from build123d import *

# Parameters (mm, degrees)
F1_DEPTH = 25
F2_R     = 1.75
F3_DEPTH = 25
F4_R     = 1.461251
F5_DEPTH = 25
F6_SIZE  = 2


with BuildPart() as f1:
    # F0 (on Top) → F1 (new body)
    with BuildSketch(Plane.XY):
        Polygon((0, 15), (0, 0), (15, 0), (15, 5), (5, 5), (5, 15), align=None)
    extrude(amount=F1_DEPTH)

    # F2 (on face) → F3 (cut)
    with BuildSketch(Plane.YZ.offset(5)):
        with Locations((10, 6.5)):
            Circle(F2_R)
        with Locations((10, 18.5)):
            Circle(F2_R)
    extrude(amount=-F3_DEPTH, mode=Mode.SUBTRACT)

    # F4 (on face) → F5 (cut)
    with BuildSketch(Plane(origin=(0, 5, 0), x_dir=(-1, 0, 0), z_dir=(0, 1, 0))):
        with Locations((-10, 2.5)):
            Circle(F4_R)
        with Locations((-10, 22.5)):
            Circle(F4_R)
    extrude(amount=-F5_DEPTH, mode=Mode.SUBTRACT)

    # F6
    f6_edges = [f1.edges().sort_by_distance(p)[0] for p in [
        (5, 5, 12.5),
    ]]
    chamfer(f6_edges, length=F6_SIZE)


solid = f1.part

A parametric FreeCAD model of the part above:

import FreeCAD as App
import Part
import Sketcher
from FreeCAD import Vector


def edges_at(feature, points):
    """Names of the edges that pass closest to the given points."""
    edges = feature.Shape.Edges
    near = lambda p: min(range(len(edges)), key=lambda i: edges[i].distToShape(Part.Vertex(*p))[0])
    return sorted({f"Edge{near(p) + 1}" for p in points})


def add_polygon(sketch, points):
    """Adds a closed chain of lines whose ends are joined by coincident constraints."""
    first, n = sketch.GeometryCount, len(points)
    for a, b in zip(points, points[1:] + points[:1]):
        sketch.addGeometry(Part.LineSegment(App.Vector(*a, 0), App.Vector(*b, 0)), False)
    for i in range(n):
        sketch.addConstraint(Sketcher.Constraint("Coincident", first + i, 2, first + (i + 1) % n, 1))

doc = App.newDocument("Part")
body = doc.addObject("PartDesign::Body", "Body")

# Sketch on XY plane
sketch1 = body.newObject("Sketcher::SketchObject", "Sketch")
sketch1.AttachmentSupport = (doc.getObject("XY_Plane"), [""])
sketch1.MapMode = "FlatFace"
add_polygon(sketch1, [(0, 15), (0, 0), (15, 0), (15, 5), (5, 5), (5, 15)])  # lines 0-5
sketch1.addConstraint([
    Sketcher.Constraint("Vertical", 0),
    Sketcher.Constraint("Horizontal", 1),
    Sketcher.Constraint("Vertical", 2),
    Sketcher.Constraint("Horizontal", 3),
    Sketcher.Constraint("Vertical", 4),
    Sketcher.Constraint("Horizontal", 5),
    Sketcher.Constraint("Coincident", 0, 2, -1, 1),
    Sketcher.Constraint("Equal", 1, 0),
    Sketcher.Constraint("Equal", 5, 2),
    Sketcher.Constraint("DistanceX", 1, 1, 1, 2, 15.0),
    Sketcher.Constraint("DistanceX", 3, 2, 3, 1, 10.0),
])
pad1 = body.newObject("PartDesign::Pad", "Pad")
pad1.Profile = sketch1
pad1.Length = 25

# Sketch on YZ plane
sketch2 = body.newObject("Sketcher::SketchObject", "Sketch001")
sketch2.AttachmentSupport = (doc.getObject("YZ_Plane"), [""])
sketch2.MapMode = "FlatFace"
sketch2.AttachmentOffset = App.Placement(Vector(0, 0, 5), App.Rotation())
sketch2.addGeometry([
    Part.Circle(Vector(10, 6.5, 0), Vector(0, 0, 1), 1.8),
    Part.Circle(Vector(10, 18.5, 0), Vector(0, 0, 1), 1.8),
], False)
sketch2.addConstraint([
    Sketcher.Constraint("Equal", 0, 1),
    Sketcher.Constraint("Vertical", 0, 3, 1, 3),
    Sketcher.Constraint("Diameter", 0, 3.5),
    Sketcher.Constraint("DistanceX", -1, 1, 0, 3, 10.0),
    Sketcher.Constraint("DistanceY", 0, 3, 1, 3, 12.0),
    Sketcher.Constraint("DistanceY", -1, 1, 0, 3, 6.5),
])
pocket1 = body.newObject("PartDesign::Pocket", "Pocket")
pocket1.Profile = sketch2
pocket1.Length = 25

# Sketch on XZ plane
sketch3 = body.newObject("Sketcher::SketchObject", "Sketch002")
sketch3.AttachmentSupport = (doc.getObject("XZ_Plane"), [""])
sketch3.MapMode = "FlatFace"
sketch3.AttachmentOffset = App.Placement(Vector(0, 0, -5), App.Rotation())
sketch3.addGeometry([
    Part.Circle(Vector(10, 2.5, 0), Vector(0, 0, 1), 1.5),
    Part.Circle(Vector(10, 22.5, 0), Vector(0, 0, 1), 1.5),
], False)
sketch3.addConstraint([
    Sketcher.Constraint("Equal", 0, 1),
    Sketcher.Constraint("Vertical", 0, 3, 1, 3),
    Sketcher.Constraint("DistanceX", -1, 1, 0, 3, 10.0),
    Sketcher.Constraint("DistanceY", 0, 3, 1, 3, 20.0),
    Sketcher.Constraint("DistanceY", -1, 1, 0, 3, 2.5),
    Sketcher.Constraint("Diameter", 0, 2.922502),
])
pocket2 = body.newObject("PartDesign::Pocket", "Pocket001")
pocket2.Profile = sketch3
pocket2.Length = 25
pocket2.Reversed = True
doc.recompute()

chamfer = body.newObject("PartDesign::Chamfer", "Chamfer")
chamfer.Base = (pocket2, edges_at(pocket2, [(5, 5, 12.5)]))
chamfer.Size = 2

doc.recompute()
